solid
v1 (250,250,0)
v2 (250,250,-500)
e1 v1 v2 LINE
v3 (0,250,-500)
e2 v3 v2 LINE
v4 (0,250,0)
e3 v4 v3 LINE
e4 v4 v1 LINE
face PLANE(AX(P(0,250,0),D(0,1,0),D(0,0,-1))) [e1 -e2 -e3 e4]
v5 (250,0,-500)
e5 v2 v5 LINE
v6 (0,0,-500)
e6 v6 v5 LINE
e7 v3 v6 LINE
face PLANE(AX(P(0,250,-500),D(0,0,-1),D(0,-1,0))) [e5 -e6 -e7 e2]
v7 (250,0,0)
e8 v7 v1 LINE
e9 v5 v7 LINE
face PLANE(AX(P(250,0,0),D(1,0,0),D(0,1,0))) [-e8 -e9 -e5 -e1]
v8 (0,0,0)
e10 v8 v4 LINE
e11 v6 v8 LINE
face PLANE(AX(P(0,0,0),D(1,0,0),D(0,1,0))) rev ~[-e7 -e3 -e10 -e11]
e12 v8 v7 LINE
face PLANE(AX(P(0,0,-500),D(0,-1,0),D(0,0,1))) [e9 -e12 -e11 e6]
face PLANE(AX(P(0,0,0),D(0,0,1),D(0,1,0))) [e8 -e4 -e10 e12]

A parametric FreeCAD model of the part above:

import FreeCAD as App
import Part
import Sketcher

V = App.Vector

doc = App.newDocument("Part")
body = doc.addObject("PartDesign::Body", "Body")

# Sketch on YZ plane
sketch1 = body.newObject("Sketcher::SketchObject", "Sketch")
sketch1.AttachmentSupport = (doc.getObject("YZ_Plane"), [""])
sketch1.MapMode = "FlatFace"
sketch1.addGeometry(Part.LineSegment(V(250, 0, 0), V(0, 0, 0)), False)
sketch1.addGeometry(Part.LineSegment(V(0, 0, 0), V(0, -500, 0)), False)
sketch1.addGeometry(Part.LineSegment(V(0, -500, 0), V(250, -500, 0)), False)
sketch1.addGeometry(Part.LineSegment(V(250, -500, 0), V(250, 0, 0)), False)
sketch1.addConstraint(Sketcher.Constraint("Coincident", 0, 2, 1, 1))
sketch1.addConstraint(Sketcher.Constraint("Coincident", 1, 2, 2, 1))
sketch1.addConstraint(Sketcher.Constraint("Coincident", 2, 2, 3, 1))
sketch1.addConstraint(Sketcher.Constraint("Coincident", 3, 2, 0, 1))
sketch1.addConstraint(Sketcher.Constraint("Horizontal", 0))
sketch1.addConstraint(Sketcher.Constraint("Vertical", 1))
sketch1.addConstraint(Sketcher.Constraint("Horizontal", 2))
sketch1.addConstraint(Sketcher.Constraint("Vertical", 3))
sketch1.addConstraint(Sketcher.Constraint("Coincident", 0, 2, -1, 1))
sketch1.addConstraint(Sketcher.Constraint("DistanceX", 0, 2, 0, 1, 250.0))
sketch1.addConstraint(Sketcher.Constraint("DistanceY", 1, 2, 1, 1, 500.0))
pad1 = body.newObject("PartDesign::Pad", "Pad")
pad1.Profile = sketch1
pad1.Length = 250

doc.recompute()
